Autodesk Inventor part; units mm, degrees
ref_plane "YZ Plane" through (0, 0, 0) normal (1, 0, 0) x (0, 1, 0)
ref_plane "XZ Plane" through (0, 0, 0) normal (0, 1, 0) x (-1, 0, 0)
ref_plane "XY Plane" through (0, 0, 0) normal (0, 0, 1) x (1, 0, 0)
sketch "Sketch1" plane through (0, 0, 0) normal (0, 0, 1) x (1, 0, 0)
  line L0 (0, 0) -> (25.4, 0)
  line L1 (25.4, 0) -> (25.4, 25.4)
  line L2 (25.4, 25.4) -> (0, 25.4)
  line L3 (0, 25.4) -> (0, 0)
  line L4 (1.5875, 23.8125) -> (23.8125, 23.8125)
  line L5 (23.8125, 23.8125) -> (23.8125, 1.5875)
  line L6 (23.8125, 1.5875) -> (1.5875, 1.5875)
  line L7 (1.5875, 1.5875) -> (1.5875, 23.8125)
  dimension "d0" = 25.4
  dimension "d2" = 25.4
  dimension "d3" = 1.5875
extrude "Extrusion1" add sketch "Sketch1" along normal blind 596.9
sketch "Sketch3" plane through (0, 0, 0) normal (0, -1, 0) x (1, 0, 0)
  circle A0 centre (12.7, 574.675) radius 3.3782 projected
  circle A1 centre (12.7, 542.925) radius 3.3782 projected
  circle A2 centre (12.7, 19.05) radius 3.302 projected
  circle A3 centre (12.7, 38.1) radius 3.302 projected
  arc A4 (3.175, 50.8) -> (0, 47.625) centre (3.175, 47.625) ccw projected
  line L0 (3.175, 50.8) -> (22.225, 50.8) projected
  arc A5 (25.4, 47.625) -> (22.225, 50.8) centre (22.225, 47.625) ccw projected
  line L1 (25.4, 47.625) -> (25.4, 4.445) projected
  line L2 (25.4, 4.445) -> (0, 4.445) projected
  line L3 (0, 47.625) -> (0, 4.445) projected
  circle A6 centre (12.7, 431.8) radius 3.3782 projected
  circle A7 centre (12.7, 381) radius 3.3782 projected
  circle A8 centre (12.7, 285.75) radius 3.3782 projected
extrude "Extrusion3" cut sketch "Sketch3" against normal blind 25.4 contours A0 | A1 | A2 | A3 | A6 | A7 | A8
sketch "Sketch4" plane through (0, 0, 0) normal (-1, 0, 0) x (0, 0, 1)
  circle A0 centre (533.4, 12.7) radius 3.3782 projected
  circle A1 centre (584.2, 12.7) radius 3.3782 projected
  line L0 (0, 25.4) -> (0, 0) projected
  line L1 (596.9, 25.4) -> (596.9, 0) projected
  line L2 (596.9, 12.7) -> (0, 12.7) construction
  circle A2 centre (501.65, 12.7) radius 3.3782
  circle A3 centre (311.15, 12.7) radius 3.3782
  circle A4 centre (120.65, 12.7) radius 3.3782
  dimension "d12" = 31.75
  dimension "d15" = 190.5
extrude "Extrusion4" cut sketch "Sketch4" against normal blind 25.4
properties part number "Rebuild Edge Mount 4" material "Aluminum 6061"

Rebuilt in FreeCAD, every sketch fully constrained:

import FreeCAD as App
import Part
import Sketcher
Q = App.Units.Quantity


def add_polygon(sketch, points):
    """Adds a closed chain of lines whose ends are joined by coincident constraints."""
    first, n = sketch.GeometryCount, len(points)
    for a, b in zip(points, points[1:] + points[:1]):
        sketch.addGeometry(Part.LineSegment(App.Vector(*a, 0), App.Vector(*b, 0)), False)
    for i in range(n):
        sketch.addConstraint(Sketcher.Constraint("Coincident", first + i, 2, first + (i + 1) % n, 1))

doc = App.newDocument("Part")
body = doc.addObject("PartDesign::Body", "Body")

sketch1 = doc.addObject("Sketcher::SketchObject", "Sketch")
body.addObject(sketch1)
sketch1.AttachmentSupport = (doc.XY_Plane, [""])
sketch1.MapMode = "FlatFace"
add_polygon(sketch1, [(0, 25), (0, 0), (25, 0), (25, 25)])
add_polygon(sketch1, [(2, 2), (2, 24), (24, 24), (24, 2)])
sketch1.addConstraint([
    Sketcher.Constraint("Vertical", 0),
    Sketcher.Constraint("Horizontal", 1),
    Sketcher.Constraint("Vertical", 2),
    Sketcher.Constraint("Horizontal", 3),
    Sketcher.Constraint("Vertical", 4),
    Sketcher.Constraint("Horizontal", 5),
    Sketcher.Constraint("Vertical", 6),
    Sketcher.Constraint("Horizontal", 7),
    Sketcher.Constraint("Coincident", 0, 2, -1, 1),
    Sketcher.Constraint("Equal", 3, 0),
    Sketcher.Constraint("Equal", 7, 4),
    Sketcher.Constraint("DistanceX", 1, 1, 1, 2, Q("1 in")),
    Sketcher.Constraint("DistanceX", -1, 1, 4, 2, Q("0.0625 in")),
    Sketcher.Constraint("DistanceY", -1, 1, 6, 2, Q("0.0625 in")),
    Sketcher.Constraint("DistanceY", 4, 2, 3, 2, Q("0.0625 in")),
])
pad1 = doc.addObject("PartDesign::Pad", "Pad")
body.addObject(pad1)
pad1.Profile = sketch1
pad1.Length = Q("23.5 in")

sketch2 = doc.addObject("Sketcher::SketchObject", "Sketch001")
body.addObject(sketch2)
sketch2.AttachmentSupport = (doc.XZ_Plane, [""])
sketch2.MapMode = "FlatFace"
sketch2.addGeometry([
    Part.Circle(App.Vector(12.7, 574.7, 0), App.Vector(0, 0, 1), 3.4),
    Part.Circle(App.Vector(12.7, 542.9, 0), App.Vector(0, 0, 1), 3.4),
    Part.Circle(App.Vector(12.7, 19.1, 0), App.Vector(0, 0, 1), 3.3),
    Part.Circle(App.Vector(12.7, 38.1, 0), App.Vector(0, 0, 1), 3.3),
    Part.Circle(App.Vector(12.7, 431.8, 0), App.Vector(0, 0, 1), 3.4),
    Part.Circle(App.Vector(12.7, 381, 0), App.Vector(0, 0, 1), 3.4),
    Part.Circle(App.Vector(12.7, 285.8, 0), App.Vector(0, 0, 1), 3.4),
], False)
sketch2.addConstraint([
    Sketcher.Constraint("Equal", 0, 1),
    Sketcher.Constraint("Equal", 2, 3),
    Sketcher.Constraint("Equal", 1, 4),
    Sketcher.Constraint("Equal", 4, 5),
    Sketcher.Constraint("Equal", 5, 6),
    Sketcher.Constraint("Vertical", 0, 3, 1, 3),
    Sketcher.Constraint("Vertical", 1, 3, 2, 3),
    Sketcher.Constraint("Vertical", 2, 3, 3, 3),
    Sketcher.Constraint("Vertical", 3, 3, 4, 3),
    Sketcher.Constraint("Vertical", 4, 3, 5, 3),
    Sketcher.Constraint("Vertical", 5, 3, 6, 3),
    Sketcher.Constraint("Diameter", 2, Q("0.26 in")),
    Sketcher.Constraint("Diameter", 0, Q("0.266 in")),
    Sketcher.Constraint("DistanceY", -1, 1, 4, 3, Q("17 in")),
    Sketcher.Constraint("DistanceY", -1, 1, 5, 3, Q("15 in")),
    Sketcher.Constraint("DistanceX", -1, 1, 0, 3, Q("0.5 in")),
    Sketcher.Constraint("DistanceY", -1, 1, 3, 3, Q("1.5 in")),
    Sketcher.Constraint("DistanceY", 2, 3, 6, 3, Q("10.5 in")),
    Sketcher.Constraint("DistanceY", -1, 1, 2, 3, Q("0.75 in")),
    Sketcher.Constraint("DistanceY", 1, 3, 0, 3, Q("1.25 in")),
    Sketcher.Constraint("DistanceY", -1, 1, 0, 3, Q("22.625 in")),
])
pocket1 = doc.addObject("PartDesign::Pocket", "Pocket")
body.addObject(pocket1)
pocket1.Profile = sketch2
pocket1.Length = Q("1 in")

sketch3 = doc.addObject("Sketcher::SketchObject", "Sketch002")
body.addObject(sketch3)
sketch3.AttachmentSupport = (doc.YZ_Plane, [""])
sketch3.MapMode = "FlatFace"
sketch3.addGeometry([
    Part.Circle(App.Vector(12.7, 533.4, 0), App.Vector(0, 0, 1), 3.4),
    Part.Circle(App.Vector(12.7, 584.2, 0), App.Vector(0, 0, 1), 3.4),
    Part.Circle(App.Vector(12.7, 501.6, 0), App.Vector(0, 0, 1), 3.4),
    Part.Circle(App.Vector(12.7, 311.1, 0), App.Vector(0, 0, 1), 3.4),
    Part.Circle(App.Vector(12.7, 120.7, 0), App.Vector(0, 0, 1), 3.4),
], False)
sketch3.addConstraint([
    Sketcher.Constraint("Equal", 0, 1),
    Sketcher.Constraint("Equal", 1, 2),
    Sketcher.Constraint("Equal", 2, 3),
    Sketcher.Constraint("Equal", 3, 4),
    Sketcher.Constraint("Vertical", 0, 3, 1, 3),
    Sketcher.Constraint("Vertical", 1, 3, 2, 3),
    Sketcher.Constraint("Vertical", 2, 3, 3, 3),
    Sketcher.Constraint("Vertical", 3, 3, 4, 3),
    Sketcher.Constraint("DistanceY", 3, 3, 2, 3, Q("7.5 in")),
    Sketcher.Constraint("DistanceY", 4, 3, 3, 3, Q("7.5 in")),
    Sketcher.Constraint("DistanceY", 2, 3, 0, 3, Q("1.25 in")),
    Sketcher.Constraint("Diameter", 0, Q("0.266 in")),
    Sketcher.Constraint("DistanceY", -1, 1, 0, 3, Q("21 in")),
    Sketcher.Constraint("DistanceY", -1, 1, 1, 3, Q("23 in")),
    Sketcher.Constraint("DistanceX", -1, 1, 0, 3, Q("0.5 in")),
])
pocket2 = doc.addObject("PartDesign::Pocket", "Pocket001")
body.addObject(pocket2)
pocket2.Profile = sketch3
pocket2.Length = Q("1 in")
pocket2.Reversed = True

doc.recompute()
